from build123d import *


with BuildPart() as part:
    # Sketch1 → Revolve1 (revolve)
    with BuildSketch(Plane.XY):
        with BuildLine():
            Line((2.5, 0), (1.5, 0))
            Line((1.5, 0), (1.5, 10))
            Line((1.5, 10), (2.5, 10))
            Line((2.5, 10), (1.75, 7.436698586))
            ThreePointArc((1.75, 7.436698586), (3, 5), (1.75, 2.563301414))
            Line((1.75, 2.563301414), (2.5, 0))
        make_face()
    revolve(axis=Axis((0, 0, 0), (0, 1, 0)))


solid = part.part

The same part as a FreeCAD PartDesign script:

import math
import FreeCAD as App
import Part
import Sketcher

V = App.Vector
Q = App.Units.Quantity

doc = App.newDocument("Part")
body = doc.addObject("PartDesign::Body", "Body")

# Sketch on XY plane
sketch1 = body.newObject("Sketcher::SketchObject", "Sketch")
sketch1.AttachmentSupport = (doc.getObject("XY_Plane"), [""])
sketch1.MapMode = "FlatFace"
sketch1.addGeometry([
    Part.LineSegment(V(1.5, 0, 0), V(2.5, 0, 0)),  # 0
    Part.LineSegment(V(2.5, 0, 0), V(1.8, 2.6, 0)),  # 1
    Part.ArcOfCircle(Part.Circle(V(0, 5, 0), V(0, 0, 1), 3), math.radians(-54), math.radians(54)),  # 2
    Part.LineSegment(V(1.8, 7.4, 0), V(2.5, 10, 0)),  # 3
    Part.LineSegment(V(2.5, 10, 0), V(1.5, 10, 0)),  # 4
    Part.LineSegment(V(1.5, 10, 0), V(1.5, 0, 0)),  # 5
], False)
sketch1.addConstraint([
    Sketcher.Constraint("Coincident", 0, 2, 1, 1),
    Sketcher.Constraint("Coincident", 1, 2, 2, 1),
    Sketcher.Constraint("Coincident", 2, 2, 3, 1),
    Sketcher.Constraint("Coincident", 3, 2, 4, 1),
    Sketcher.Constraint("Coincident", 4, 2, 5, 1),
    Sketcher.Constraint("Coincident", 5, 2, 0, 1),
    Sketcher.Constraint("Horizontal", 0),
    Sketcher.Constraint("Horizontal", 4),
    Sketcher.Constraint("Vertical", 5),
    Sketcher.Constraint("PointOnObject", 2, 3, -2),
    Sketcher.Constraint("PointOnObject", 0, 2, -1),
    Sketcher.Constraint("Vertical", 1, 2, 2, 2),
    Sketcher.Constraint("Vertical", 0, 2, 3, 2),
    Sketcher.Constraint("Equal", 1, 3),
    Sketcher.Constraint("Radius", 2, Q("3 mm")),
    Sketcher.Constraint("DistanceX", 0, 1, 0, 2, Q("1 mm")),
    Sketcher.Constraint("DistanceY", 5, 2, 5, 1, Q("10 mm")),
    Sketcher.Constraint("DistanceX", -1, 1, 0, 2, Q("2.5 mm")),
    Sketcher.Constraint("DistanceX", -1, 1, 1, 2, Q("1.75 mm")),
])
revolution = body.newObject("PartDesign::Revolution", "Revolution")
revolution.Profile = sketch1
revolution.ReferenceAxis = (sketch1, ["V_Axis"])
revolution.Angle = 360

doc.recompute()
